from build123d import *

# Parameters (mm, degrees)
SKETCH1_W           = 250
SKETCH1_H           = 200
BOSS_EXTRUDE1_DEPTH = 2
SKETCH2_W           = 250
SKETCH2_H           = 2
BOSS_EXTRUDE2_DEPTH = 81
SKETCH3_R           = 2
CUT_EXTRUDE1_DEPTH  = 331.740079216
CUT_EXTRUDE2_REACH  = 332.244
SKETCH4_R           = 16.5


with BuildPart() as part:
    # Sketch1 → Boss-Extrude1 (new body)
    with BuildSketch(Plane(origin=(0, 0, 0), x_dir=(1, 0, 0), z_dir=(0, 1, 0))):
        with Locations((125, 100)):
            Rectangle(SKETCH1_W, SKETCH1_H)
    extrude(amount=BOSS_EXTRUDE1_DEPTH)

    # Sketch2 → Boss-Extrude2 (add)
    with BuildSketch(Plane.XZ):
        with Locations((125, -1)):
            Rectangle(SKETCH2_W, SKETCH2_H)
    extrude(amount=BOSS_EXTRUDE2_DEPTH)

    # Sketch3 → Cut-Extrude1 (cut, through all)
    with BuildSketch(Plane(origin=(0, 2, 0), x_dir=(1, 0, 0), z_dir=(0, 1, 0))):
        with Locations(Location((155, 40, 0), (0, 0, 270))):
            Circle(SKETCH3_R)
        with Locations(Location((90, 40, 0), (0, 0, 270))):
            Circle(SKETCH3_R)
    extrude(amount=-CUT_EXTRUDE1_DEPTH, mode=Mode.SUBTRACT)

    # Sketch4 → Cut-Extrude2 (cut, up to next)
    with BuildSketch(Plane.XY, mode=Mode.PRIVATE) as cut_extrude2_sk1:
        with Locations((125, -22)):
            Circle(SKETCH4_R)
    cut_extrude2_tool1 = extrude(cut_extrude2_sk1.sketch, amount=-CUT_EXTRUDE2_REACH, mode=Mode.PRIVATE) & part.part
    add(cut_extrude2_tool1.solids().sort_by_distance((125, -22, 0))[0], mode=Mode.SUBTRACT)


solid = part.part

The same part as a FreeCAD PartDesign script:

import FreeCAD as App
import Part
import Sketcher

V = App.Vector
Q = App.Units.Quantity

doc = App.newDocument("Part")
body = doc.addObject("PartDesign::Body", "Body")

sketch1 = doc.addObject("Sketcher::SketchObject", "Sketch")
body.addObject(sketch1)
sketch1.AttachmentSupport = (doc.XZ_Plane, [""])
sketch1.MapMode = "FlatFace"
sketch1.addGeometry(Part.LineSegment(V(0, -200, 0), V(0, 0, 0)), False)
sketch1.addGeometry(Part.LineSegment(V(0, 0, 0), V(250, 0, 0)), False)
sketch1.addGeometry(Part.LineSegment(V(250, 0, 0), V(250, -200, 0)), False)
sketch1.addGeometry(Part.LineSegment(V(250, -200, 0), V(0, -200, 0)), False)
sketch1.addConstraint(Sketcher.Constraint("Coincident", 0, 2, 1, 1))
sketch1.addConstraint(Sketcher.Constraint("Coincident", 1, 2, 2, 1))
sketch1.addConstraint(Sketcher.Constraint("Coincident", 2, 2, 3, 1))
sketch1.addConstraint(Sketcher.Constraint("Coincident", 3, 2, 0, 1))
sketch1.addConstraint(Sketcher.Constraint("Vertical", 0))
sketch1.addConstraint(Sketcher.Constraint("Horizontal", 1))
sketch1.addConstraint(Sketcher.Constraint("Vertical", 2))
sketch1.addConstraint(Sketcher.Constraint("Horizontal", 3))
sketch1.addConstraint(Sketcher.Constraint("Coincident", 0, 2, -1, 1))
sketch1.addConstraint(Sketcher.Constraint("DistanceX", 1, 1, 1, 2, Q("250 mm")))
sketch1.addConstraint(Sketcher.Constraint("DistanceY", 0, 1, 0, 2, Q("200 mm")))
pad1 = doc.addObject("PartDesign::Pad", "Pad")
body.addObject(pad1)
pad1.Profile = sketch1
pad1.Length = 2
pad1.Reversed = True

sketch2 = doc.addObject("Sketcher::SketchObject", "Sketch001")
body.addObject(sketch2)
sketch2.AttachmentSupport = (doc.XZ_Plane, [""])
sketch2.MapMode = "FlatFace"
sketch2.addGeometry(Part.LineSegment(V(0, 0, 0), V(0, -2, 0)), False)
sketch2.addGeometry(Part.LineSegment(V(0, -2, 0), V(250, -2, 0)), False)
sketch2.addGeometry(Part.LineSegment(V(250, -2, 0), V(250, 0, 0)), False)
sketch2.addGeometry(Part.LineSegment(V(250, 0, 0), V(0, 0, 0)), False)
sketch2.addConstraint(Sketcher.Constraint("Coincident", 0, 2, 1, 1))
sketch2.addConstraint(Sketcher.Constraint("Coincident", 1, 2, 2, 1))
sketch2.addConstraint(Sketcher.Constraint("Coincident", 2, 2, 3, 1))
sketch2.addConstraint(Sketcher.Constraint("Coincident", 3, 2, 0, 1))
sketch2.addConstraint(Sketcher.Constraint("Vertical", 0))
sketch2.addConstraint(Sketcher.Constraint("Horizontal", 1))
sketch2.addConstraint(Sketcher.Constraint("Vertical", 2))
sketch2.addConstraint(Sketcher.Constraint("Horizontal", 3))
sketch2.addConstraint(Sketcher.Constraint("Coincident", 3, 2, -1, 1))
sketch2.addConstraint(Sketcher.Constraint("DistanceX", 1, 1, 1, 2, Q("250 mm")))
sketch2.addConstraint(Sketcher.Constraint("DistanceY", 0, 2, 0, 1, Q("2 mm")))
pad2 = doc.addObject("PartDesign::Pad", "Pad001")
body.addObject(pad2)
pad2.Profile = sketch2
pad2.Length = 81

sketch3 = doc.addObject("Sketcher::SketchObject", "Sketch002")
body.addObject(sketch3)
sketch3.AttachmentSupport = (doc.XZ_Plane, [""])
sketch3.MapMode = "FlatFace"
sketch3.AttachmentOffset = App.Placement(V(0, 0, -2), App.Rotation())
sketch3.addGeometry(Part.Circle(V(155, -40, 0), V(0, 0, 1), 2), False)
sketch3.addGeometry(Part.Circle(V(90, -40, 0), V(0, 0, 1), 2), False)
sketch3.addConstraint(Sketcher.Constraint("Equal", 0, 1))
sketch3.addConstraint(Sketcher.Constraint("Horizontal", 0, 3, 1, 3))
sketch3.addConstraint(Sketcher.Constraint("Diameter", 0, Q("4 mm")))
sketch3.addConstraint(Sketcher.Constraint("DistanceX", -1, 1, 0, 3, Q("155 mm")))
sketch3.addConstraint(Sketcher.Constraint("DistanceY", 0, 3, -1, 1, Q("40 mm")))
sketch3.addConstraint(Sketcher.Constraint("DistanceX", -1, 1, 1, 3, Q("90 mm")))
pocket1 = doc.addObject("PartDesign::Pocket", "Pocket")
body.addObject(pocket1)
pocket1.Profile = sketch3
pocket1.Type = "ThroughAll"
pocket1.Reversed = True

sketch4 = doc.addObject("Sketcher::SketchObject", "Sketch003")
body.addObject(sketch4)
sketch4.AttachmentSupport = (doc.XY_Plane, [""])
sketch4.MapMode = "FlatFace"
sketch4.addGeometry(Part.Circle(V(125, -22, 0), V(0, 0, 1), 16), False)
sketch4.addConstraint(Sketcher.Constraint("Diameter", 0, Q("33 mm")))
sketch4.addConstraint(Sketcher.Constraint("DistanceX", -1, 1, 0, 3, Q("125 mm")))
sketch4.addConstraint(Sketcher.Constraint("DistanceY", 0, 3, -1, 1, Q("22 mm")))
pocket2 = doc.addObject("PartDesign::Pocket", "Pocket001")
body.addObject(pocket2)
pocket2.Profile = sketch4
pocket2.Type = "UpToFirst"

doc.recompute()
